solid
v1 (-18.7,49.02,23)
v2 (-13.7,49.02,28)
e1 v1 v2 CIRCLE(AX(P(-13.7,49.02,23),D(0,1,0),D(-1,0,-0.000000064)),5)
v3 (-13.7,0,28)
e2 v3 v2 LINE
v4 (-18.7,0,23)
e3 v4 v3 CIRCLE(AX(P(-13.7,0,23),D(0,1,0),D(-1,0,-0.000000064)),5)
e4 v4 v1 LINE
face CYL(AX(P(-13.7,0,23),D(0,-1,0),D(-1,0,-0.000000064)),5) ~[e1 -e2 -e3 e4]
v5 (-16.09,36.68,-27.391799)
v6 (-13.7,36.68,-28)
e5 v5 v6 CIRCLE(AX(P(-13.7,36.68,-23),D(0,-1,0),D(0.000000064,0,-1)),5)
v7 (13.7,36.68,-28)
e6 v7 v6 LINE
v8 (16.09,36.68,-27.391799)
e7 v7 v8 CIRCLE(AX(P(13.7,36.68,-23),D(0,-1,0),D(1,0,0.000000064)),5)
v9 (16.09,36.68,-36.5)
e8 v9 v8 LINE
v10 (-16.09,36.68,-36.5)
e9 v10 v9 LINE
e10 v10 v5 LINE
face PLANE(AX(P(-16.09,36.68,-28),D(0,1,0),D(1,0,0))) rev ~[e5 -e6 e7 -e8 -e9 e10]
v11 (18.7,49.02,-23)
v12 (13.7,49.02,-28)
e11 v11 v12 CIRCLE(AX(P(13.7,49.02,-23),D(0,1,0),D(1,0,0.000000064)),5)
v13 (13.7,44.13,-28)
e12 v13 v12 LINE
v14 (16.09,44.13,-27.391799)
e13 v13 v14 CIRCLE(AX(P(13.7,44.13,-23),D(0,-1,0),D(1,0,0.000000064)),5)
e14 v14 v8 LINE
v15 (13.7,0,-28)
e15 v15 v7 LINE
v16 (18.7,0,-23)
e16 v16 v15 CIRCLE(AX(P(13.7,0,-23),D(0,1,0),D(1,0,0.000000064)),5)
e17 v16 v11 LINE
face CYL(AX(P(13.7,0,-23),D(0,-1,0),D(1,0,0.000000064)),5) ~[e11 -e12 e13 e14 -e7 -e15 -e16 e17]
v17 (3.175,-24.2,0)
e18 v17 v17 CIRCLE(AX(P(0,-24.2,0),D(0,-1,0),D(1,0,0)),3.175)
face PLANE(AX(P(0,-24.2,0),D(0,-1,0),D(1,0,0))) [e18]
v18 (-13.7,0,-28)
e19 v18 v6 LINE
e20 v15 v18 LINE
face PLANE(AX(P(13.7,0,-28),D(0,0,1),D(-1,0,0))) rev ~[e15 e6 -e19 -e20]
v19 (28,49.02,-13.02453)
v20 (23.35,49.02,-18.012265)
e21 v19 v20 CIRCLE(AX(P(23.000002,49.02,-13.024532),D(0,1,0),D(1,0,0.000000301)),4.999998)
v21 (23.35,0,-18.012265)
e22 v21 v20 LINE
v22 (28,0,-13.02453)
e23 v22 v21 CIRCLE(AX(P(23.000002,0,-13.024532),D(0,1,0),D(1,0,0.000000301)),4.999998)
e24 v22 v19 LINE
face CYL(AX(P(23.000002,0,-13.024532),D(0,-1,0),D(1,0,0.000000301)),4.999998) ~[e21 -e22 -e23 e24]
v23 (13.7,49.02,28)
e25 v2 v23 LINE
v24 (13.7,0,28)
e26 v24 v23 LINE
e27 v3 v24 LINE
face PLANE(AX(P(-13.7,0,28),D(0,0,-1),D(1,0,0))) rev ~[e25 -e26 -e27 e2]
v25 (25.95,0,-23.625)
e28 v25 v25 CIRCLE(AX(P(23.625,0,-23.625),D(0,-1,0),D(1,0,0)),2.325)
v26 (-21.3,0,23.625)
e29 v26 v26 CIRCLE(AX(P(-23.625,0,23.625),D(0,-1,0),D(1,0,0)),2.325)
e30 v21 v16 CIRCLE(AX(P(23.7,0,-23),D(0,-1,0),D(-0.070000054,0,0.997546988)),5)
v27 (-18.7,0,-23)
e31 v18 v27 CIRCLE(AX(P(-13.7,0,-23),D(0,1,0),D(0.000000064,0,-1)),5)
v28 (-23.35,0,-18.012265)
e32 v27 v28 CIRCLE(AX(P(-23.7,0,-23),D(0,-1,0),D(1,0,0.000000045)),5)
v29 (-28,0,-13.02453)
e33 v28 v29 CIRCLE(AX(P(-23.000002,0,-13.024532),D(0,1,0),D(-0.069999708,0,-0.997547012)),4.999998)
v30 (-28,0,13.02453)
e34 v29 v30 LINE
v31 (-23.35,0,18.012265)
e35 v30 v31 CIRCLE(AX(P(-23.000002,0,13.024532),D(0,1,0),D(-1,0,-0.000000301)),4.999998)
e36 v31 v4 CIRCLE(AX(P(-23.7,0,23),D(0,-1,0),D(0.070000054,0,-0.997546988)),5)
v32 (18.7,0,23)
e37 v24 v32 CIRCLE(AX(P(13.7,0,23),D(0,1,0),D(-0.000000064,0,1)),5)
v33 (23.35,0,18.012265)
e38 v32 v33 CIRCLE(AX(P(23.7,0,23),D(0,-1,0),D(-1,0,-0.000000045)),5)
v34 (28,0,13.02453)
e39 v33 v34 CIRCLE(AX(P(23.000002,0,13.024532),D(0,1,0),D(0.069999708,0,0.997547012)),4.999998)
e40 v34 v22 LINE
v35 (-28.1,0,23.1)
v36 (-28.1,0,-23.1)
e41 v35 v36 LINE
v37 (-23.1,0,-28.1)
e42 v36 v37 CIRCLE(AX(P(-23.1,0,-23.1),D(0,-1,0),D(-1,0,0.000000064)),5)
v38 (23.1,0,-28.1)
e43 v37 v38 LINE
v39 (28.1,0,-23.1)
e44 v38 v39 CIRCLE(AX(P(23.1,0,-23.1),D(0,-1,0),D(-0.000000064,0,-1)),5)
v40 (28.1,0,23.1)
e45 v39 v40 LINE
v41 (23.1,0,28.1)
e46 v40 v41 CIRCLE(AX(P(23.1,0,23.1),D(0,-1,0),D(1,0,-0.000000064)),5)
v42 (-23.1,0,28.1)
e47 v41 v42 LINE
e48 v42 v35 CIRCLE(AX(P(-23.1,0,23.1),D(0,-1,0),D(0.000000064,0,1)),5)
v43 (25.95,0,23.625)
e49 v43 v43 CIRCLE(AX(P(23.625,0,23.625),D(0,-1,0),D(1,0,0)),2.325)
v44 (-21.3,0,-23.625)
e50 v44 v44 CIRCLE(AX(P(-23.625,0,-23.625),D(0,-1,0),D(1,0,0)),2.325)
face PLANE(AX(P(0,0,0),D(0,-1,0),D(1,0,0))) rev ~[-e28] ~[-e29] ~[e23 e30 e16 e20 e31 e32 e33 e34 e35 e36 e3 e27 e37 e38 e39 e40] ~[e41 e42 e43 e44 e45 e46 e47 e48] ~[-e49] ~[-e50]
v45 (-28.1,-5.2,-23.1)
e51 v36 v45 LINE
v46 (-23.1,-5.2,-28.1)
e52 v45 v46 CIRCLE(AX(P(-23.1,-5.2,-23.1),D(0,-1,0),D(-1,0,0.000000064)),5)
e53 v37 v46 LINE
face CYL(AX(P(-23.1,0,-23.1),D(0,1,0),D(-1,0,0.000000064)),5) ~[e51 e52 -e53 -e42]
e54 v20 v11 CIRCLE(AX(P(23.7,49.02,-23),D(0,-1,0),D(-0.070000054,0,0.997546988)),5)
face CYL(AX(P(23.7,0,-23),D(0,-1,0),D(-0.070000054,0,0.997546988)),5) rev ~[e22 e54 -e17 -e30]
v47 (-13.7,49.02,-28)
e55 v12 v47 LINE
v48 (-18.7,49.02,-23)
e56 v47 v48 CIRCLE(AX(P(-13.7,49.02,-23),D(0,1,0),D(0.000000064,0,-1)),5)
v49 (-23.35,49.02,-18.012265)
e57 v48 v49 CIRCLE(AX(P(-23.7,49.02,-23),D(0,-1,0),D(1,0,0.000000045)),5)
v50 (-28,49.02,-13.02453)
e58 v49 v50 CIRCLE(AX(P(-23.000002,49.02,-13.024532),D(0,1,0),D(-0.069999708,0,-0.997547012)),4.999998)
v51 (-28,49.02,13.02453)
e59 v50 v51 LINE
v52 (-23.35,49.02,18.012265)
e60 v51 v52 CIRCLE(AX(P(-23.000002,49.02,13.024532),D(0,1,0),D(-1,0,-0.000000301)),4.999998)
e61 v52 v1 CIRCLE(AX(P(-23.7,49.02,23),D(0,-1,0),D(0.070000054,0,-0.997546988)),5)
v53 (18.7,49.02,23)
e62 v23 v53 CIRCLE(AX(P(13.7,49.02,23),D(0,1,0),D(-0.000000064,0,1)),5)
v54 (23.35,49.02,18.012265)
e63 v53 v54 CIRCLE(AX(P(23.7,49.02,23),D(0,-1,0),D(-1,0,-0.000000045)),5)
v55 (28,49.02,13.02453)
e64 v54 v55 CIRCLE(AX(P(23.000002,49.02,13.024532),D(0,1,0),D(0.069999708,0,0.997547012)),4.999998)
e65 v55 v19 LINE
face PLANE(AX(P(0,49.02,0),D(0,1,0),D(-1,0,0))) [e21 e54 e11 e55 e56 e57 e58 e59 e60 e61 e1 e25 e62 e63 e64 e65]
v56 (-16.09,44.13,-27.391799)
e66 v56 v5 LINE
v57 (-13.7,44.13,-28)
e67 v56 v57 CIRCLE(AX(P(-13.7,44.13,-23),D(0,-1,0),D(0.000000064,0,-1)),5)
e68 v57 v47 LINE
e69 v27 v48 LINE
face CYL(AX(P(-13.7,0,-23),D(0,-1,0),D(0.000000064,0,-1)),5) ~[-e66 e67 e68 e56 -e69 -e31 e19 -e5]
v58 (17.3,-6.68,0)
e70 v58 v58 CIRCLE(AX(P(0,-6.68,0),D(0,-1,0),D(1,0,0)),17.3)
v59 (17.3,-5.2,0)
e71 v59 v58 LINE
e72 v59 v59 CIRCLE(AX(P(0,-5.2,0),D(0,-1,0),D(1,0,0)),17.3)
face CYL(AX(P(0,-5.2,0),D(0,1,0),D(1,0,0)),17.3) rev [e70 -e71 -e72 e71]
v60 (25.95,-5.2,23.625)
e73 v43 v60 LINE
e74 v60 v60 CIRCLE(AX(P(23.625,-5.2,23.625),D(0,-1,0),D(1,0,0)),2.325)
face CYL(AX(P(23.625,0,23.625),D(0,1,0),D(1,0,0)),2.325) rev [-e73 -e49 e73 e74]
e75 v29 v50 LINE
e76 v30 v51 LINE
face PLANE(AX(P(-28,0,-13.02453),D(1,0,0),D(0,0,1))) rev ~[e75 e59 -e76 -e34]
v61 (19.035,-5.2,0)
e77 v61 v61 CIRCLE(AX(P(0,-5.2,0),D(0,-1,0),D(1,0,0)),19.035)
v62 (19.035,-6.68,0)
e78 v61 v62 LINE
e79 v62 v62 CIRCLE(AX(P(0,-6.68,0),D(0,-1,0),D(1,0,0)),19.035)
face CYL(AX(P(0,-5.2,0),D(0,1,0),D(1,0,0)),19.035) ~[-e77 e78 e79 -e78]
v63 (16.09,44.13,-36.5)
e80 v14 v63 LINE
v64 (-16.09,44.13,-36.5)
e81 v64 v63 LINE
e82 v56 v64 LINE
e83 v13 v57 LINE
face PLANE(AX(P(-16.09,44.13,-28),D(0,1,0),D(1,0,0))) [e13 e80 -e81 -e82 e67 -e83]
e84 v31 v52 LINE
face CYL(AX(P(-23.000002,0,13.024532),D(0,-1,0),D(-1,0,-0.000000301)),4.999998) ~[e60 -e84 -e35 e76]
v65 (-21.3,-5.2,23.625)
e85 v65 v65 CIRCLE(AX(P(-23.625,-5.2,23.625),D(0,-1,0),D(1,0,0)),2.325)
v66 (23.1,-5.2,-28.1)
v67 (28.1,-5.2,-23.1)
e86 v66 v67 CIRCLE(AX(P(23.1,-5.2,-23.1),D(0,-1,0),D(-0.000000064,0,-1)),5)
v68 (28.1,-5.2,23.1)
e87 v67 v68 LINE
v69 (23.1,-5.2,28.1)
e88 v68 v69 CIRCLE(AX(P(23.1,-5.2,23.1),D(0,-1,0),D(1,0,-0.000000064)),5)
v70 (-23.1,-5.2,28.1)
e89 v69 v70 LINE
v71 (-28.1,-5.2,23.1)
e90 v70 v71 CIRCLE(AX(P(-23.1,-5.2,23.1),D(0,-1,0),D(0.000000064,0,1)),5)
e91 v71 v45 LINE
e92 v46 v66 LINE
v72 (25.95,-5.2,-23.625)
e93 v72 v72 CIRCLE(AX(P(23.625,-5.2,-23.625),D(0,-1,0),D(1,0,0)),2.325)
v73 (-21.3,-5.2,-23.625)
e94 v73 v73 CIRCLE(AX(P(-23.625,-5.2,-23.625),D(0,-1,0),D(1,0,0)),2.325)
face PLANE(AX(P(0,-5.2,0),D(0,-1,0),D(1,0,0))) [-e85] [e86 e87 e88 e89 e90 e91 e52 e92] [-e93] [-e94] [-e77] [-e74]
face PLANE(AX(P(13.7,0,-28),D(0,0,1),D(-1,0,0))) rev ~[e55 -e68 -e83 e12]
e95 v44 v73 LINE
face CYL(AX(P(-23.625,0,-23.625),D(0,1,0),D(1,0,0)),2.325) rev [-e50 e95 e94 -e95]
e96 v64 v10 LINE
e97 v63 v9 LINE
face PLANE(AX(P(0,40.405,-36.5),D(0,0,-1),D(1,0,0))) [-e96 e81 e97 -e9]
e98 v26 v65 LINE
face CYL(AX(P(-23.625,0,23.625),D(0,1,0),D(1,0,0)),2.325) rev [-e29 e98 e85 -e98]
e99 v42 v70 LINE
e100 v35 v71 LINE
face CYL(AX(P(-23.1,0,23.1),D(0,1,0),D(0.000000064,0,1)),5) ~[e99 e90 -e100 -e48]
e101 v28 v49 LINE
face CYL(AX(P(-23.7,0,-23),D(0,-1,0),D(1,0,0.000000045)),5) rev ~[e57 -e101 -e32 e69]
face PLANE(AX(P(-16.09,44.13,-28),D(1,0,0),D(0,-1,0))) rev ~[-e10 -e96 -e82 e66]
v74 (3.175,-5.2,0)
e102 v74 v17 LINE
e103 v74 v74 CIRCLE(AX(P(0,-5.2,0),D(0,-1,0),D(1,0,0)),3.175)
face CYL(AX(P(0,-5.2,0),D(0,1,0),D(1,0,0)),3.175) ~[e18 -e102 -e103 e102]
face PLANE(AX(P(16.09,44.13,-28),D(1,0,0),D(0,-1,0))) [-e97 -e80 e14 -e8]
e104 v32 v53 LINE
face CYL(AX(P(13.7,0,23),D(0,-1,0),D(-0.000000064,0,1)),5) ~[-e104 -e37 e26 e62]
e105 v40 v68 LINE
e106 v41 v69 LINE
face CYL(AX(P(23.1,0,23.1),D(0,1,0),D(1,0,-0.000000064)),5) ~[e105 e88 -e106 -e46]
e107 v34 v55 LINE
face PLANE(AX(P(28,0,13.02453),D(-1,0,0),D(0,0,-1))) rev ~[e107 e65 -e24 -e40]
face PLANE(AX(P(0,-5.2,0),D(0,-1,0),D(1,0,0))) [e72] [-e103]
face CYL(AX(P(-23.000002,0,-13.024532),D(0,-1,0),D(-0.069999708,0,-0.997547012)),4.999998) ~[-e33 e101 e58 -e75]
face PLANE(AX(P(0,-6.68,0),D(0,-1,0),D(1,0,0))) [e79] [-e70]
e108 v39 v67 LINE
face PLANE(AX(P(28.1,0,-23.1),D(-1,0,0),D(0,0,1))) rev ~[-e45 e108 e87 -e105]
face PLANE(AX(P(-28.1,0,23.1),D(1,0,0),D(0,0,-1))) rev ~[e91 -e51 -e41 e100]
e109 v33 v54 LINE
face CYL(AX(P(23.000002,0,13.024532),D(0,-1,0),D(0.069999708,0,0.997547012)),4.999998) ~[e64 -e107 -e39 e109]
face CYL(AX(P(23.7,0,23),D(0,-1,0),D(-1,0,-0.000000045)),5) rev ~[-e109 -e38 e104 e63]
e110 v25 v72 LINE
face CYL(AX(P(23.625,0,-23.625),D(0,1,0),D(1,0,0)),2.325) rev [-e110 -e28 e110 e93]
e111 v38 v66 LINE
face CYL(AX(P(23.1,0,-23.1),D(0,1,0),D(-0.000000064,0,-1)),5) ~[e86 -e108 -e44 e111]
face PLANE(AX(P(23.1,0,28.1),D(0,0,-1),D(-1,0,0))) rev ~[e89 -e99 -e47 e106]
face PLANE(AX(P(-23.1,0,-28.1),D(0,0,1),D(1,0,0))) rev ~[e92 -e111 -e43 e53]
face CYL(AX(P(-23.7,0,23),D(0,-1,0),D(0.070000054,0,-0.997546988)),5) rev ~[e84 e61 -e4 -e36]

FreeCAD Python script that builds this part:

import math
import FreeCAD as App
import Part
import Sketcher
from FreeCAD import Vector

doc = App.newDocument("Part")
params = doc.addObject("Spreadsheet::Sheet", "Params")
for row, (alias, value) in enumerate([
    ("sketch1_radius", "5 mm"),
    ("sketch1_diameter", "4.65 mm"),
    ("sketch1_width", "46.2 mm"),
    ("pad1_length", "5.2 mm"),
    ("sketch2_diameter", "34.6 mm"),
    ("sketch2_diameter2", "38.07 mm"),
    ("pad2_length", "1.48 mm"),
    ("sketch3_radius", "5 mm"),
    ("sketch3_width", "27.4 mm"),
    ("pad3_length", "49.02 mm"),
    ("sketch4_diameter", "6.35 mm"),
    ("pad4_length", "19 mm"),
    ("sketch5_width", "32.18 mm"),
    ("sketch5_height", "7.45 mm"),
    ("pad5_length", "17 mm"),
], start=1):
    params.set(f"A{row}", alias)
    params.set(f"B{row}", "=" + value)
    params.setAlias(f"B{row}", alias)

body = doc.addObject("PartDesign::Body", "Body")

sketch1 = body.newObject("Sketcher::SketchObject", "Sketch")
sketch1.AttachmentSupport = (doc.getObject("XZ_Plane"), [""])
sketch1.MapMode = "FlatFace"
sketch1.addGeometry([
    Part.ArcOfCircle(Part.Circle(Vector(23.1, 23.1, 0), Vector(0, 0, 1), 5), math.radians(0), math.radians(90)),
    Part.LineSegment(Vector(23.1, 28.1, 0), Vector(-23.1, 28.1, 0)),
    Part.ArcOfCircle(Part.Circle(Vector(-23.1, 23.1, 0), Vector(0, 0, 1), 5), math.radians(90), math.radians(180)),
    Part.LineSegment(Vector(-28.1, 23.1, 0), Vector(-28.1, -23.1, 0)),
    Part.ArcOfCircle(Part.Circle(Vector(-23.1, -23.1, 0), Vector(0, 0, 1), 5), math.radians(180), math.radians(270)),
    Part.LineSegment(Vector(-23.1, -28.1, 0), Vector(23.1, -28.1, 0)),
    Part.ArcOfCircle(Part.Circle(Vector(23.1, -23.1, 0), Vector(0, 0, 1), 5), math.radians(-90), math.radians(0)),
    Part.LineSegment(Vector(28.1, -23.1, 0), Vector(28.1, 23.1, 0)),
    Part.Circle(Vector(-23.6, -23.6, 0), Vector(0, 0, 1), 2.3),
    Part.Circle(Vector(23.6, -23.6, 0), Vector(0, 0, 1), 2.3),
    Part.Circle(Vector(-23.6, 23.6, 0), Vector(0, 0, 1), 2.3),
    Part.Circle(Vector(23.6, 23.6, 0), Vector(0, 0, 1), 2.3),
], False)
sketch1.addConstraint([
    Sketcher.Constraint("Tangent", 0, 2, 1, 1),
    Sketcher.Constraint("Tangent", 1, 2, 2, 1),
    Sketcher.Constraint("Tangent", 2, 2, 3, 1),
    Sketcher.Constraint("Tangent", 3, 2, 4, 1),
    Sketcher.Constraint("Tangent", 4, 2, 5, 1),
    Sketcher.Constraint("Tangent", 5, 2, 6, 1),
    Sketcher.Constraint("Tangent", 6, 2, 7, 1),
    Sketcher.Constraint("Tangent", 7, 2, 0, 1),
    Sketcher.Constraint("Horizontal", 1),
    Sketcher.Constraint("Vertical", 3),
    Sketcher.Constraint("Horizontal", 5),
    Sketcher.Constraint("Vertical", 7),
    Sketcher.Constraint("Equal", 0, 2),
    Sketcher.Constraint("Equal", 2, 4),
    Sketcher.Constraint("Equal", 4, 6),
    Sketcher.Constraint("Equal", 8, 9),
    Sketcher.Constraint("Equal", 9, 10),
    Sketcher.Constraint("Equal", 10, 11),
    Sketcher.Constraint("Symmetric", 0, 3, 4, 3, -1, 1),
    Sketcher.Constraint("Symmetric", 9, 3, 10, 3, -1, 1),
    Sketcher.Constraint("Symmetric", 8, 3, 11, 3, -1, 1),
    Sketcher.Constraint("Symmetric", 8, 3, 9, 3, -2),
    Sketcher.Constraint("Equal", 5, 3),
    Sketcher.Constraint("Radius", 0, 5.0),
    Sketcher.Constraint("Diameter", 8, 4.65),
    Sketcher.Constraint("DistanceX", 1, 2, 1, 1, 46.2),
    Sketcher.Constraint("DistanceX", 8, 3, 9, 3, 47.25),
    Sketcher.Constraint("DistanceY", 8, 3, 10, 3, 47.25),
])
sketch1.setExpression("Constraints[23]", "Params.sketch1_radius")
sketch1.setExpression("Constraints[24]", "Params.sketch1_diameter")
sketch1.setExpression("Constraints[25]", "Params.sketch1_width")
pad1 = body.newObject("PartDesign::Pad", "Pad")
pad1.Profile = sketch1
pad1.setExpression("Length", "Params.pad1_length")

sketch2 = body.newObject("Sketcher::SketchObject", "Sketch001")
sketch2.AttachmentSupport = (doc.getObject("XZ_Plane"), [""])
sketch2.MapMode = "FlatFace"
sketch2.AttachmentOffset = App.Placement(Vector(0, 0, 5.2), App.Rotation())
sketch2.addGeometry([
    Part.Circle(Vector(0, 0, 0), Vector(0, 0, 1), 19),
    Part.Circle(Vector(0, 0, 0), Vector(0, 0, 1), 17),
], False)
sketch2.addConstraint([
    Sketcher.Constraint("Coincident", 0, 3, -1, 1),
    Sketcher.Constraint("Coincident", 1, 3, -1, 1),
    Sketcher.Constraint("Diameter", 1, 34.6),
    Sketcher.Constraint("Diameter", 0, 38.07),
])
sketch2.setExpression("Constraints[2]", "Params.sketch2_diameter")
sketch2.setExpression("Constraints[3]", "Params.sketch2_diameter2")
pad2 = body.newObject("PartDesign::Pad", "Pad001")
pad2.Profile = sketch2
pad2.setExpression("Length", "Params.pad2_length")

sketch3 = body.newObject("Sketcher::SketchObject", "Sketch002")
sketch3.AttachmentSupport = (doc.getObject("XZ_Plane"), [""])
sketch3.MapMode = "FlatFace"
sketch3.addGeometry([
    Part.LineSegment(Vector(-13.7, 28, 0), Vector(13.7, 28, 0)),
    Part.ArcOfCircle(Part.Circle(Vector(13.7, 23, 0), Vector(0, 0, 1), 5), math.radians(0), math.radians(90)),
    Part.ArcOfCircle(Part.Circle(Vector(23.7, 23, 0), Vector(0, 0, 1), 5), math.radians(-180), math.radians(-94)),
    Part.ArcOfCircle(Part.Circle(Vector(23, 13, 0), Vector(0, 0, 1), 5), math.radians(0), math.radians(86)),
    Part.LineSegment(Vector(28, 13, 0), Vector(28, -13, 0)),
    Part.ArcOfCircle(Part.Circle(Vector(23, -13, 0), Vector(0, 0, 1), 5), math.radians(-86), math.radians(0)),
    Part.ArcOfCircle(Part.Circle(Vector(23.7, -23, 0), Vector(0, 0, 1), 5), math.radians(94), math.radians(180)),
    Part.ArcOfCircle(Part.Circle(Vector(13.7, -23, 0), Vector(0, 0, 1), 5), math.radians(-90), math.radians(0)),
    Part.LineSegment(Vector(13.7, -28, 0), Vector(-13.7, -28, 0)),
    Part.ArcOfCircle(Part.Circle(Vector(-13.7, -23, 0), Vector(0, 0, 1), 5), math.radians(180), math.radians(270)),
    Part.ArcOfCircle(Part.Circle(Vector(-23.7, -23, 0), Vector(0, 0, 1), 5), math.radians(0), math.radians(86)),
    Part.ArcOfCircle(Part.Circle(Vector(-23, -13, 0), Vector(0, 0, 1), 5), math.radians(180), math.radians(266)),
    Part.LineSegment(Vector(-28, -13, 0), Vector(-28, 13, 0)),
    Part.ArcOfCircle(Part.Circle(Vector(-23, 13, 0), Vector(0, 0, 1), 5), math.radians(94), math.radians(180)),
    Part.ArcOfCircle(Part.Circle(Vector(-23.7, 23, 0), Vector(0, 0, 1), 5), math.radians(-86), math.radians(0)),
    Part.ArcOfCircle(Part.Circle(Vector(-13.7, 23, 0), Vector(0, 0, 1), 5), math.radians(90), math.radians(180)),
], False)
sketch3.addConstraint([
    Sketcher.Constraint("Tangent", 0, 2, 1, 2),
    Sketcher.Constraint("Tangent", 1, 1, 2, 1),
    Sketcher.Constraint("Tangent", 2, 2, 3, 2),
    Sketcher.Constraint("Tangent", 3, 1, 4, 1),
    Sketcher.Constraint("Tangent", 4, 2, 5, 2),
    Sketcher.Constraint("Tangent", 5, 1, 6, 1),
    Sketcher.Constraint("Tangent", 6, 2, 7, 2),
    Sketcher.Constraint("Tangent", 7, 1, 8, 1),
    Sketcher.Constraint("Tangent", 8, 2, 9, 2),
    Sketcher.Constraint("Tangent", 9, 1, 10, 1),
    Sketcher.Constraint("Tangent", 10, 2, 11, 2),
    Sketcher.Constraint("Tangent", 11, 1, 12, 1),
    Sketcher.Constraint("Tangent", 12, 2, 13, 2),
    Sketcher.Constraint("Tangent", 13, 1, 14, 1),
    Sketcher.Constraint("Tangent", 14, 2, 15, 2),
    Sketcher.Constraint("Tangent", 15, 1, 0, 1),
    Sketcher.Constraint("Horizontal", 0),
    Sketcher.Constraint("Vertical", 4),
    Sketcher.Constraint("Horizontal", 8),
    Sketcher.Constraint("Vertical", 12),
    Sketcher.Constraint("Equal", 1, 2),
    Sketcher.Constraint("Equal", 2, 3),
    Sketcher.Constraint("Equal", 3, 5),
    Sketcher.Constraint("Equal", 5, 6),
    Sketcher.Constraint("Equal", 6, 7),
    Sketcher.Constraint("Equal", 7, 9),
    Sketcher.Constraint("Equal", 9, 10),
    Sketcher.Constraint("Equal", 10, 11),
    Sketcher.Constraint("Equal", 11, 13),
    Sketcher.Constraint("Equal", 13, 14),
    Sketcher.Constraint("Equal", 14, 15),
    Sketcher.Constraint("Symmetric", 1, 3, 9, 3, -1, 1),
    Sketcher.Constraint("Symmetric", 3, 3, 11, 3, -1, 1),
    Sketcher.Constraint("Symmetric", 6, 3, 14, 3, -1, 1),
    Sketcher.Constraint("Symmetric", 6, 3, 10, 3, -2),
    Sketcher.Constraint("Horizontal", 1, 3, 2, 3),
    Sketcher.Constraint("Radius", 1, 5.0),
    Sketcher.Constraint("DistanceX", 0, 1, 0, 2, 27.4),
    Sketcher.Constraint("DistanceY", -1, 1, 1, 3, 23.0),
    Sketcher.Constraint("DistanceX", -1, 1, 3, 3, 23.000002),
])
sketch3.setExpression("Constraints[36]", "Params.sketch3_radius")
sketch3.setExpression("Constraints[37]", "Params.sketch3_width")
pad3 = body.newObject("PartDesign::Pad", "Pad002")
pad3.Profile = sketch3
pad3.setExpression("Length", "Params.pad3_length")
pad3.Reversed = True

sketch4 = body.newObject("Sketcher::SketchObject", "Sketch003")
sketch4.AttachmentSupport = (doc.getObject("XZ_Plane"), [""])
sketch4.MapMode = "FlatFace"
sketch4.AttachmentOffset = App.Placement(Vector(0, 0, 5.2), App.Rotation())
sketch4.addGeometry(Part.Circle(Vector(0, 0, 0), Vector(0, 0, 1), 3.2), False)
sketch4.addConstraint([
    Sketcher.Constraint("Coincident", 0, 3, -1, 1),
    Sketcher.Constraint("Diameter", 0, 6.35),
])
sketch4.setExpression("Constraints[1]", "Params.sketch4_diameter")
pad4 = body.newObject("PartDesign::Pad", "Pad003")
pad4.Profile = sketch4
pad4.setExpression("Length", "Params.pad4_length")

sketch5 = body.newObject("Sketcher::SketchObject", "Sketch004")
sketch5.AttachmentSupport = (doc.getObject("XY_Plane"), [""])
sketch5.MapMode = "FlatFace"
sketch5.AttachmentOffset = App.Placement(Vector(0, 0, -28), App.Rotation())
sketch5.addGeometry([
    Part.LineSegment(Vector(-16, 37, 0), Vector(-16, 44, 0)),
    Part.LineSegment(Vector(-16, 44, 0), Vector(16, 44, 0)),
    Part.LineSegment(Vector(16, 44, 0), Vector(16, 37, 0)),
    Part.LineSegment(Vector(16, 37, 0), Vector(-16, 37, 0)),
], False)
sketch5.addConstraint([
    Sketcher.Constraint("Coincident", 0, 2, 1, 1),
    Sketcher.Constraint("Coincident", 1, 2, 2, 1),
    Sketcher.Constraint("Coincident", 2, 2, 3, 1),
    Sketcher.Constraint("Coincident", 3, 2, 0, 1),
    Sketcher.Constraint("Vertical", 0),
    Sketcher.Constraint("Horizontal", 1),
    Sketcher.Constraint("Vertical", 2),
    Sketcher.Constraint("Horizontal", 3),
    Sketcher.Constraint("DistanceX", 1, 1, 1, 2, 32.18),
    Sketcher.Constraint("DistanceY", 0, 1, 0, 2, 7.45),
    Sketcher.Constraint("DistanceX", 0, 2, -1, 1, 16.09),
    Sketcher.Constraint("DistanceY", -1, 1, 0, 2, 44.13),
])
sketch5.setExpression("Constraints[8]", "Params.sketch5_width")
sketch5.setExpression("Constraints[9]", "Params.sketch5_height")
pad5 = body.newObject("PartDesign::Pad", "Pad004")
pad5.Profile = sketch5
pad5.setExpression("Length", "Params.pad5_length")
pad5.Midplane = True

doc.recompute()
